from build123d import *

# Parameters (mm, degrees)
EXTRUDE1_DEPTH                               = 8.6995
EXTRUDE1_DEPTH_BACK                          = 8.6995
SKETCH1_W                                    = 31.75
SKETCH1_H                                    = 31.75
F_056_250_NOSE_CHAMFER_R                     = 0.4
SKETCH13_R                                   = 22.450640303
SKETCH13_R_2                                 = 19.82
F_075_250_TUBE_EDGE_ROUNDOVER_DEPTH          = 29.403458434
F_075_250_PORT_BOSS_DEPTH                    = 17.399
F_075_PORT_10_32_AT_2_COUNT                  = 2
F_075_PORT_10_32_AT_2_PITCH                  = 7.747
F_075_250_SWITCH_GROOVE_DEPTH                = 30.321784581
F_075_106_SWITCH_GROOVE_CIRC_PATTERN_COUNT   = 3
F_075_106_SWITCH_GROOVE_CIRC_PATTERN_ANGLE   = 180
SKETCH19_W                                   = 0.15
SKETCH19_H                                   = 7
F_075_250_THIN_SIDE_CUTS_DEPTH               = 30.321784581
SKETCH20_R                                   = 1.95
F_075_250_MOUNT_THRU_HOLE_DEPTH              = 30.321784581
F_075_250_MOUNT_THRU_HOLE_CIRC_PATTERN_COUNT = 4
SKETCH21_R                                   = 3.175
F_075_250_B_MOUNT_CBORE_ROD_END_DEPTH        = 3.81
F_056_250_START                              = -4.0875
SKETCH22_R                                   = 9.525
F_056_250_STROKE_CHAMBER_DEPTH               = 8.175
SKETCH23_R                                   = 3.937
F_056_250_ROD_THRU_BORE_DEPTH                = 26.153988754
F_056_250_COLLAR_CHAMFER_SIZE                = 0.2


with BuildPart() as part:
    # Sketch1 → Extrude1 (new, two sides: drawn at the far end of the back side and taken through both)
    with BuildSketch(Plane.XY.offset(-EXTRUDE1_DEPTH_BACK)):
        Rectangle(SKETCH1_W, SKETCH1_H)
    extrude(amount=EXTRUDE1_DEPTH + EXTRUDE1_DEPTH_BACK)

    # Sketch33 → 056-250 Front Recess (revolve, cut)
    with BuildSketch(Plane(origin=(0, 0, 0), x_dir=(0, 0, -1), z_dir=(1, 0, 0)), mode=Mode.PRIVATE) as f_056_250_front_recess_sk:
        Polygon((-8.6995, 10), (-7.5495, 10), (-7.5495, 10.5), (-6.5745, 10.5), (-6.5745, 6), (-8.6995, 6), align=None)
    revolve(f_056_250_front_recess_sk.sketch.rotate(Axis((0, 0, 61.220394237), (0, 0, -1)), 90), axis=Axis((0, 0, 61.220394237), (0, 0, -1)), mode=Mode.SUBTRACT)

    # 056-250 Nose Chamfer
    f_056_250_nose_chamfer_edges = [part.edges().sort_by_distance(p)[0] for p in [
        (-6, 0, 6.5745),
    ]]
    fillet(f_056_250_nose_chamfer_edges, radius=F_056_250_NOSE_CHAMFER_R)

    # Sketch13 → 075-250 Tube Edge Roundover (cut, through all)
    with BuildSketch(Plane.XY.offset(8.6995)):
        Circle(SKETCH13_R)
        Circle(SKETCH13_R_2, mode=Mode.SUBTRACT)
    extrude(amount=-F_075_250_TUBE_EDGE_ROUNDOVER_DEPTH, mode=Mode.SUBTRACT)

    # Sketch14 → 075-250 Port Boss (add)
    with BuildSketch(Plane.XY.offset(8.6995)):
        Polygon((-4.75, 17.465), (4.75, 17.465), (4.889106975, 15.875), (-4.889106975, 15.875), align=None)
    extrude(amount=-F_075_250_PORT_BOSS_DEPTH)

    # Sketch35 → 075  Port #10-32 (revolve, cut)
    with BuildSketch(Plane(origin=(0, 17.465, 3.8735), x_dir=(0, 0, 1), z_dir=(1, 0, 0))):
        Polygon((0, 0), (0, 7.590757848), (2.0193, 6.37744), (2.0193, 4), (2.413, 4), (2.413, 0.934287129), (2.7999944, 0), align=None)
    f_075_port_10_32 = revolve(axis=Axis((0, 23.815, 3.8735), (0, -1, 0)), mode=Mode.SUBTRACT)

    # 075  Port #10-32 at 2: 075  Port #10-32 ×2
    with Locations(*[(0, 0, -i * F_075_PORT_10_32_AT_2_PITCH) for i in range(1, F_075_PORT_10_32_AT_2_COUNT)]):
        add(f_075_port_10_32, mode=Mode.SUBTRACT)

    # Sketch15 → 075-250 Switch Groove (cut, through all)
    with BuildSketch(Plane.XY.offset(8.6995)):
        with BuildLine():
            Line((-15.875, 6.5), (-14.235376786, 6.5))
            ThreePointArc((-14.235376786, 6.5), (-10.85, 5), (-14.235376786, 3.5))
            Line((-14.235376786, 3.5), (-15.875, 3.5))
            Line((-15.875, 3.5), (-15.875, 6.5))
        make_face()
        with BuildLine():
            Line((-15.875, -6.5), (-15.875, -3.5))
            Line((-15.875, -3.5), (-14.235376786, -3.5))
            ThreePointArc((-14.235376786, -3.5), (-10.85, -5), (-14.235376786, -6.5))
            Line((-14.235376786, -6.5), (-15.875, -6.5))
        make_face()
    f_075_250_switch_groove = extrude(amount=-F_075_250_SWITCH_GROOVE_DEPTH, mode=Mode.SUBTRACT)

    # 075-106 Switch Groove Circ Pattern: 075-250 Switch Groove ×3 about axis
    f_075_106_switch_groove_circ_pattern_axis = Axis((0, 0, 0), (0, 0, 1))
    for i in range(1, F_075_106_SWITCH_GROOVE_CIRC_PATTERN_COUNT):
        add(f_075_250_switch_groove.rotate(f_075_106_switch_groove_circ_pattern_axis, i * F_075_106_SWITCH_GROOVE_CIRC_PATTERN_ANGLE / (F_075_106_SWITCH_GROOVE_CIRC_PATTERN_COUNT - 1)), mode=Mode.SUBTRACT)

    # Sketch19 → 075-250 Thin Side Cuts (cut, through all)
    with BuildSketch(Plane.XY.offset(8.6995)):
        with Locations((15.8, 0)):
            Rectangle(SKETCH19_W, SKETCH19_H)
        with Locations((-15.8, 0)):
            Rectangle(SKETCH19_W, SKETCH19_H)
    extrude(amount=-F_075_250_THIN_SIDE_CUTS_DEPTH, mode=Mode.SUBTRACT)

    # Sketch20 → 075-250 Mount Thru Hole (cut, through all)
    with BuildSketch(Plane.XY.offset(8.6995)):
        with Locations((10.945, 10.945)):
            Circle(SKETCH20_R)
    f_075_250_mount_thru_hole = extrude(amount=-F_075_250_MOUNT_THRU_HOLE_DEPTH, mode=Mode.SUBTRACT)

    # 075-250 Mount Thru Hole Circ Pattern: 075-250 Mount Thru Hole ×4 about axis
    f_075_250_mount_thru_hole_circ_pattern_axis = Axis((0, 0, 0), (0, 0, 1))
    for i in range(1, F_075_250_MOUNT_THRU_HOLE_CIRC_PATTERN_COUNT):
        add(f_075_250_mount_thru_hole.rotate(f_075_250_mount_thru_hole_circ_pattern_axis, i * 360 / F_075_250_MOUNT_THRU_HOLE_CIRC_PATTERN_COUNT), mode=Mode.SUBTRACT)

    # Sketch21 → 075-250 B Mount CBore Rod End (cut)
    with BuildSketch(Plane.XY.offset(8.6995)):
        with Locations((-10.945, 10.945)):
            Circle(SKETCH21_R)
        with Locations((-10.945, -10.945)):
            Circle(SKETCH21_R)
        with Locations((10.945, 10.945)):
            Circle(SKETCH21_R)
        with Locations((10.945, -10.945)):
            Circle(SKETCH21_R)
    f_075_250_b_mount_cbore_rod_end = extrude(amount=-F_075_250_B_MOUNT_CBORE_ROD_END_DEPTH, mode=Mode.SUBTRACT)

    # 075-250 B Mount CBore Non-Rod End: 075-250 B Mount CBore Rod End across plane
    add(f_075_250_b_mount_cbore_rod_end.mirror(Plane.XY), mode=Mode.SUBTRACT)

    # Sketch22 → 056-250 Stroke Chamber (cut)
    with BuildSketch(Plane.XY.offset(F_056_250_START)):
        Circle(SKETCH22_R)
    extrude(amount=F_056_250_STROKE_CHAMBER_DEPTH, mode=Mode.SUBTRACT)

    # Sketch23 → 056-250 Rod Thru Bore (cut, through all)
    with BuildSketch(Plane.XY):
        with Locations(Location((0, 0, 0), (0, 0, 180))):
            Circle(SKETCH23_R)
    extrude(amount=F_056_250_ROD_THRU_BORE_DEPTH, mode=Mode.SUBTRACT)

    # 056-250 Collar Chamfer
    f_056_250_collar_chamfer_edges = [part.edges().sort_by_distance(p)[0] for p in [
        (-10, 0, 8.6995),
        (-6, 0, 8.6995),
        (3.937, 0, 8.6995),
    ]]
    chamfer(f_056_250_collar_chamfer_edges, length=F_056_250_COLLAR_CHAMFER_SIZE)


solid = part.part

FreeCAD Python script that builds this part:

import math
import FreeCAD as App
import Part
import Sketcher
from FreeCAD import Vector
Q = App.Units.Quantity


def edges_at(feature, points):
    """Names of the edges that pass closest to the given points."""
    edges = feature.Shape.Edges
    near = lambda p: min(range(len(edges)), key=lambda i: edges[i].distToShape(Part.Vertex(*p))[0])
    return sorted({f"Edge{near(p) + 1}" for p in points})

doc = App.newDocument("Part")
body = doc.addObject("PartDesign::Body", "Body")

sketch1 = body.newObject("Sketcher::SketchObject", "Sketch")
sketch1.AttachmentSupport = (doc.getObject("XY_Plane"), [""])
sketch1.MapMode = "FlatFace"
sketch1.addGeometry([
    Part.LineSegment(Vector(-16, 16, 0), Vector(-16, -16, 0)),
    Part.LineSegment(Vector(-16, -16, 0), Vector(16, -16, 0)),
    Part.LineSegment(Vector(16, -16, 0), Vector(16, 16, 0)),
    Part.LineSegment(Vector(16, 16, 0), Vector(-16, 16, 0)),
], False)
sketch1.addConstraint([
    Sketcher.Constraint("Coincident", 0, 2, 1, 1),
    Sketcher.Constraint("Coincident", 1, 2, 2, 1),
    Sketcher.Constraint("Coincident", 2, 2, 3, 1),
    Sketcher.Constraint("Coincident", 3, 2, 0, 1),
    Sketcher.Constraint("Vertical", 0),
    Sketcher.Constraint("Horizontal", 1),
    Sketcher.Constraint("Vertical", 2),
    Sketcher.Constraint("Horizontal", 3),
    Sketcher.Constraint("Symmetric", 0, 2, 2, 2, -1, 1),
    Sketcher.Constraint("Equal", 3, 0),
    Sketcher.Constraint("DistanceX", 1, 1, 1, 2, Q("31.75 mm")),
])
pad1 = body.newObject("PartDesign::Pad", "Pad")
pad1.Profile = sketch1
pad1.Type = "TwoLengths"
pad1.Length = 8.6995
pad1.Length2 = 8.6995

sketch2 = body.newObject("Sketcher::SketchObject", "Sketch001")
sketch2.AttachmentSupport = (doc.getObject("YZ_Plane"), [""])
sketch2.MapMode = "FlatFace"
sketch2.addGeometry([
    Part.LineSegment(Vector(10, 7.5, 0), Vector(10, 8.7, 0)),
    Part.LineSegment(Vector(10, 8.7, 0), Vector(6, 8.7, 0)),
    Part.LineSegment(Vector(6, 8.7, 0), Vector(6, 6.6, 0)),
    Part.LineSegment(Vector(6, 6.6, 0), Vector(10.5, 6.6, 0)),
    Part.LineSegment(Vector(10.5, 6.6, 0), Vector(10.5, 7.5, 0)),
    Part.LineSegment(Vector(10.5, 7.5, 0), Vector(10, 7.5, 0)),
], False)
sketch2.addConstraint([
    Sketcher.Constraint("Coincident", 0, 2, 1, 1),
    Sketcher.Constraint("Coincident", 1, 2, 2, 1),
    Sketcher.Constraint("Coincident", 2, 2, 3, 1),
    Sketcher.Constraint("Coincident", 3, 2, 4, 1),
    Sketcher.Constraint("Coincident", 4, 2, 5, 1),
    Sketcher.Constraint("Coincident", 5, 2, 0, 1),
    Sketcher.Constraint("Vertical", 0),
    Sketcher.Constraint("Horizontal", 1),
    Sketcher.Constraint("Vertical", 2),
    Sketcher.Constraint("Horizontal", 3),
    Sketcher.Constraint("Vertical", 4),
    Sketcher.Constraint("Horizontal", 5),
    Sketcher.Constraint("DistanceX", 1, 2, 1, 1, Q("4 mm")),
    Sketcher.Constraint("DistanceX", 3, 1, 3, 2, Q("4.5 mm")),
    Sketcher.Constraint("DistanceX", -1, 1, 0, 2, Q("10 mm")),
    Sketcher.Constraint("DistanceY", 0, 1, 0, 2, Q("1.15 mm")),
    Sketcher.Constraint("DistanceY", 2, 2, 2, 1, Q("2.125 mm")),
    Sketcher.Constraint("DistanceY", -1, 1, 0, 2, Q("8.6995 mm")),
])
groove = body.newObject("PartDesign::Groove", "Groove")
groove.Profile = sketch2
groove.ReferenceAxis = (sketch2, ["V_Axis"])
groove.Angle = 360
doc.recompute()

fillet = body.newObject("PartDesign::Fillet", "Fillet")
fillet.Base = (groove, edges_at(groove, [(-6, 0, 6.574)]))
fillet.Radius = 0.4

sketch3 = body.newObject("Sketcher::SketchObject", "Sketch002")
sketch3.AttachmentSupport = (doc.getObject("XY_Plane"), [""])
sketch3.MapMode = "FlatFace"
sketch3.AttachmentOffset = App.Placement(Vector(0, 0, 8.6995), App.Rotation())
sketch3.addGeometry([
    Part.Circle(Vector(0, 0, 0), Vector(0, 0, 1), 22),
    Part.Circle(Vector(0, 0, 0), Vector(0, 0, 1), 20),
], False)
sketch3.addConstraint([
    Sketcher.Constraint("Coincident", 0, 3, -1, 1),
    Sketcher.Constraint("Coincident", 1, 3, -1, 1),
    Sketcher.Constraint("Diameter", 1, Q("39.64 mm")),
    Sketcher.Constraint("Diameter", 0, Q("44.901281 mm")),
])
pocket1 = body.newObject("PartDesign::Pocket", "Pocket")
pocket1.Profile = sketch3
pocket1.Type = "ThroughAll"

sketch4 = body.newObject("Sketcher::SketchObject", "Sketch003")
sketch4.AttachmentSupport = (doc.getObject("XY_Plane"), [""])
sketch4.MapMode = "FlatFace"
sketch4.AttachmentOffset = App.Placement(Vector(0, 0, 8.6995), App.Rotation())
sketch4.addGeometry([
    Part.LineSegment(Vector(4.8, 17.5, 0), Vector(-4.8, 17.5, 0)),
    Part.LineSegment(Vector(-4.8, 17.5, 0), Vector(-4.9, 15.9, 0)),
    Part.LineSegment(Vector(-4.9, 15.9, 0), Vector(4.9, 15.9, 0)),
    Part.LineSegment(Vector(4.9, 15.9, 0), Vector(4.8, 17.5, 0)),
], False)
sketch4.addConstraint([
    Sketcher.Constraint("Coincident", 0, 2, 1, 1),
    Sketcher.Constraint("Coincident", 1, 2, 2, 1),
    Sketcher.Constraint("Coincident", 2, 2, 3, 1),
    Sketcher.Constraint("Coincident", 3, 2, 0, 1),
    Sketcher.Constraint("Horizontal", 0),
    Sketcher.Constraint("Horizontal", 2),
    Sketcher.Constraint("Equal", 1, 3),
    Sketcher.Constraint("Angle", 1, Q("-95 deg")),
    Sketcher.Constraint("DistanceX", 0, 2, 0, 1, Q("9.5 mm")),
    Sketcher.Constraint("DistanceX", 0, 2, -1, 1, Q("4.75 mm")),
    Sketcher.Constraint("DistanceY", 1, 2, 0, 2, Q("1.59 mm")),
    Sketcher.Constraint("DistanceY", -1, 1, 0, 2, Q("17.465 mm")),
])
pad2 = body.newObject("PartDesign::Pad", "Pad001")
pad2.Profile = sketch4
pad2.Length = 17.399
pad2.Reversed = True

sketch5 = body.newObject("Sketcher::SketchObject", "Sketch004")
sketch5.AttachmentSupport = (doc.getObject("YZ_Plane"), [""])
sketch5.MapMode = "FlatFace"
sketch5.addGeometry([
    Part.LineSegment(Vector(9.87, 3.87, 0), Vector(17.46, 3.87, 0)),
    Part.LineSegment(Vector(17.46, 3.87, 0), Vector(17.46, 6.67, 0)),
    Part.LineSegment(Vector(17.46, 6.67, 0), Vector(16.53, 6.29, 0)),
    Part.LineSegment(Vector(16.53, 6.29, 0), Vector(13.46, 6.29, 0)),
    Part.LineSegment(Vector(13.46, 6.29, 0), Vector(13.46, 5.89, 0)),
    Part.LineSegment(Vector(13.46, 5.89, 0), Vector(11.09, 5.89, 0)),
    Part.LineSegment(Vector(11.09, 5.89, 0), Vector(9.87, 3.87, 0)),
], False)
sketch5.addGeometry(Part.LineSegment(Vector(17.46, 3.87, 0), Vector(9.87, 3.87, 0)), True)
sketch5.addConstraint([
    Sketcher.Constraint("Coincident", 0, 2, 1, 1),
    Sketcher.Constraint("Coincident", 1, 2, 2, 1),
    Sketcher.Constraint("Coincident", 2, 2, 3, 1),
    Sketcher.Constraint("Coincident", 3, 2, 4, 1),
    Sketcher.Constraint("Coincident", 4, 2, 5, 1),
    Sketcher.Constraint("Coincident", 5, 2, 6, 1),
    Sketcher.Constraint("Coincident", 6, 2, 0, 1),
    Sketcher.Constraint("Horizontal", 0),
    Sketcher.Constraint("Vertical", 1),
    Sketcher.Constraint("Horizontal", 3),
    Sketcher.Constraint("Vertical", 4),
    Sketcher.Constraint("Horizontal", 5),
    Sketcher.Constraint("Horizontal", 7),
    Sketcher.Constraint("Coincident", 7, 1, 0, 2),
    Sketcher.Constraint("Equal", 0, 7),
    Sketcher.Constraint("Angle", 6, Q("-121 deg")),
    Sketcher.Constraint("Angle", 2, Q("-157.5 deg")),
    Sketcher.Constraint("DistanceX", 3, 2, 1, 2, Q("4 mm")),
    Sketcher.Constraint("DistanceY", 4, 2, 4, 1, Q("0.3937 mm")),
    Sketcher.Constraint("DistanceX", -1, 1, 0, 2, Q("17.465 mm")),
    Sketcher.Constraint("DistanceY", 0, 2, 2, 2, Q("2.413 mm")),
    Sketcher.Constraint("DistanceX", 5, 2, 5, 1, Q("2.37744 mm")),
    Sketcher.Constraint("DistanceY", -1, 1, 0, 2, Q("3.8735 mm")),
    Sketcher.Constraint("DistanceX", 3, 2, 3, 1, Q("3.065713 mm")),
])
groove2 = body.newObject("PartDesign::Groove", "Groove001")
groove2.Profile = sketch5
groove2.ReferenceAxis = (sketch5, ["Axis0"])
groove2.Angle = 360
doc.recompute()

linearpattern = body.newObject("PartDesign::LinearPattern", "LinearPattern")
linearpattern.Originals = [groove2]
linearpattern.Direction = (doc.getObject("Z_Axis"), [""])
linearpattern.Mode = "offset"
linearpattern.Offset = 7.747
linearpattern.Occurrences = 2
linearpattern.Reversed = True
body.Tip = linearpattern

sketch6 = body.newObject("Sketcher::SketchObject", "Sketch005")
sketch6.AttachmentSupport = (doc.getObject("XY_Plane"), [""])
sketch6.MapMode = "FlatFace"
sketch6.AttachmentOffset = App.Placement(Vector(0, 0, 8.6995), App.Rotation())
sketch6.addGeometry([
    Part.LineSegment(Vector(-14.2, 6.5, 0), Vector(-15.9, 6.5, 0)),
    Part.LineSegment(Vector(-15.9, 6.5, 0), Vector(-15.9, 3.5, 0)),
    Part.LineSegment(Vector(-15.9, 3.5, 0), Vector(-14.2, 3.5, 0)),
    Part.ArcOfCircle(Part.Circle(Vector(-12.9, 5, 0), Vector(0, 0, 1), 2), math.radians(-132), math.radians(132)),
    Part.LineSegment(Vector(-15.9, -3.5, 0), Vector(-15.9, -6.5, 0)),
    Part.LineSegment(Vector(-15.9, -6.5, 0), Vector(-14.2, -6.5, 0)),
    Part.ArcOfCircle(Part.Circle(Vector(-12.9, -5, 0), Vector(0, 0, 1), 2), math.radians(-132), math.radians(132)),
    Part.LineSegment(Vector(-14.2, -3.5, 0), Vector(-15.9, -3.5, 0)),
], False)
sketch6.addConstraint([
    Sketcher.Constraint("Coincident", 0, 2, 1, 1),
    Sketcher.Constraint("Coincident", 1, 2, 2, 1),
    Sketcher.Constraint("Coincident", 2, 2, 3, 1),
    Sketcher.Constraint("Coincident", 3, 2, 0, 1),
    Sketcher.Constraint("Coincident", 4, 2, 5, 1),
    Sketcher.Constraint("Coincident", 5, 2, 6, 1),
    Sketcher.Constraint("Coincident", 6, 2, 7, 1),
    Sketcher.Constraint("Coincident", 7, 2, 4, 1),
    Sketcher.Constraint("Horizontal", 0),
    Sketcher.Constraint("Vertical", 1),
    Sketcher.Constraint("Horizontal", 2),
    Sketcher.Constraint("Vertical", 4),
    Sketcher.Constraint("Horizontal", 5),
    Sketcher.Constraint("Horizontal", 7),
    Sketcher.Constraint("Equal", 3, 6),
    Sketcher.Constraint("Symmetric", 3, 3, 6, 3, -1),
    Sketcher.Constraint("Symmetric", 0, 2, 4, 2, -1),
    Sketcher.Constraint("Vertical", 2, 2, 3, 2),
    Sketcher.Constraint("Vertical", 5, 2, 6, 2),
    Sketcher.Constraint("DistanceY", 1, 2, 1, 1, Q("3 mm")),
    Sketcher.Constraint("DistanceY", -1, 1, 3, 3, Q("5 mm")),
    Sketcher.Constraint("Radius", 3, Q("2.025 mm")),
    Sketcher.Constraint("DistanceX", 0, 2, 3, 3, Q("3 mm")),
    Sketcher.Constraint("DistanceX", 3, 3, -1, 1, Q("12.875 mm")),
])
pocket2 = body.newObject("PartDesign::Pocket", "Pocket001")
pocket2.Profile = sketch6
pocket2.Type = "ThroughAll"
doc.recompute()

polarpattern = body.newObject("PartDesign::PolarPattern", "PolarPattern")
polarpattern.Originals = [pocket2]
polarpattern.Axis = (doc.getObject("Z_Axis"), [""])
polarpattern.Angle = 180
polarpattern.Occurrences = 3
body.Tip = polarpattern

sketch7 = body.newObject("Sketcher::SketchObject", "Sketch006")
sketch7.AttachmentSupport = (doc.getObject("XY_Plane"), [""])
sketch7.MapMode = "FlatFace"
sketch7.AttachmentOffset = App.Placement(Vector(0, 0, 8.6995), App.Rotation())
sketch7.addGeometry([
    Part.LineSegment(Vector(15.72, 3.5, 0), Vector(15.72, -3.5, 0)),
    Part.LineSegment(Vector(15.72, -3.5, 0), Vector(15.88, -3.5, 0)),
    Part.LineSegment(Vector(15.88, -3.5, 0), Vector(15.88, 3.5, 0)),
    Part.LineSegment(Vector(15.88, 3.5, 0), Vector(15.72, 3.5, 0)),
    Part.LineSegment(Vector(-15.88, 3.5, 0), Vector(-15.88, -3.5, 0)),
    Part.LineSegment(Vector(-15.88, -3.5, 0), Vector(-15.72, -3.5, 0)),
    Part.LineSegment(Vector(-15.72, -3.5, 0), Vector(-15.72, 3.5, 0)),
    Part.LineSegment(Vector(-15.72, 3.5, 0), Vector(-15.88, 3.5, 0)),
], False)
sketch7.addConstraint([
    Sketcher.Constraint("Coincident", 0, 2, 1, 1),
    Sketcher.Constraint("Coincident", 1, 2, 2, 1),
    Sketcher.Constraint("Coincident", 2, 2, 3, 1),
    Sketcher.Constraint("Coincident", 3, 2, 0, 1),
    Sketcher.Constraint("Coincident", 4, 2, 5, 1),
    Sketcher.Constraint("Coincident", 5, 2, 6, 1),
    Sketcher.Constraint("Coincident", 6, 2, 7, 1),
    Sketcher.Constraint("Coincident", 7, 2, 4, 1),
    Sketcher.Constraint("Vertical", 0),
    Sketcher.Constraint("Horizontal", 1),
    Sketcher.Constraint("Vertical", 2),
    Sketcher.Constraint("Horizontal", 3),
    Sketcher.Constraint("Vertical", 4),
    Sketcher.Constraint("Horizontal", 5),
    Sketcher.Constraint("Vertical", 6),
    Sketcher.Constraint("Horizontal", 7),
    Sketcher.Constraint("Symmetric", 2, 2, 4, 2, -1, 1),
    Sketcher.Constraint("Symmetric", 0, 2, 6, 2, -1, 1),
    Sketcher.Constraint("Horizontal", 1, 2, 4, 2),
    Sketcher.Constraint("DistanceY", 0, 2, 0, 1, Q("7 mm")),
    Sketcher.Constraint("DistanceX", 1, 1, 1, 2, Q("0.15 mm")),
    Sketcher.Constraint("DistanceX", 4, 2, 0, 2, Q("31.6 mm")),
])
pocket3 = body.newObject("PartDesign::Pocket", "Pocket002")
pocket3.Profile = sketch7
pocket3.Type = "ThroughAll"

sketch8 = body.newObject("Sketcher::SketchObject", "Sketch007")
sketch8.AttachmentSupport = (doc.getObject("XY_Plane"), [""])
sketch8.MapMode = "FlatFace"
sketch8.AttachmentOffset = App.Placement(Vector(0, 0, 8.6995), App.Rotation())
sketch8.addGeometry(Part.Circle(Vector(10.9, 10.9, 0), Vector(0, 0, 1), 1.9), False)
sketch8.addConstraint([
    Sketcher.Constraint("Diameter", 0, Q("3.9 mm")),
    Sketcher.Constraint("DistanceX", -1, 1, 0, 3, Q("10.945 mm")),
    Sketcher.Constraint("DistanceY", -1, 1, 0, 3, Q("10.945 mm")),
])
pocket4 = body.newObject("PartDesign::Pocket", "Pocket003")
pocket4.Profile = sketch8
pocket4.Type = "ThroughAll"
doc.recompute()

polarpattern2 = body.newObject("PartDesign::PolarPattern", "PolarPattern001")
polarpattern2.Originals = [pocket4]
polarpattern2.Axis = (doc.getObject("Z_Axis"), [""])
polarpattern2.Angle = 360
polarpattern2.Occurrences = 4
body.Tip = polarpattern2

sketch9 = body.newObject("Sketcher::SketchObject", "Sketch008")
sketch9.AttachmentSupport = (doc.getObject("XY_Plane"), [""])
sketch9.MapMode = "FlatFace"
sketch9.AttachmentOffset = App.Placement(Vector(0, 0, 8.6995), App.Rotation())
sketch9.addGeometry([
    Part.Circle(Vector(-10.9, 10.9, 0), Vector(0, 0, 1), 3.2),
    Part.Circle(Vector(-10.9, -10.9, 0), Vector(0, 0, 1), 3.2),
    Part.Circle(Vector(10.9, 10.9, 0), Vector(0, 0, 1), 3.2),
    Part.Circle(Vector(10.9, -10.9, 0), Vector(0, 0, 1), 3.2),
], False)
sketch9.addConstraint([
    Sketcher.Constraint("Equal", 0, 1),
    Sketcher.Constraint("Equal", 1, 2),
    Sketcher.Constraint("Equal", 2, 3),
    Sketcher.Constraint("Symmetric", 1, 3, 2, 3, -1, 1),
    Sketcher.Constraint("Symmetric", 0, 3, 3, 3, -1, 1),
    Sketcher.Constraint("Symmetric", 0, 3, 2, 3, -2),
    Sketcher.Constraint("Diameter", 0, Q("6.35 mm")),
    Sketcher.Constraint("DistanceY", 1, 3, 0, 3, Q("21.89 mm")),
    Sketcher.Constraint("DistanceX", 0, 3, 2, 3, Q("21.89 mm")),
])
pocket5 = body.newObject("PartDesign::Pocket", "Pocket004")
pocket5.Profile = sketch9
pocket5.Length = 3.81
doc.recompute()

mirrored = body.newObject("PartDesign::Mirrored", "Mirrored")
mirrored.Originals = [pocket5]
mirrored.MirrorPlane = (doc.getObject("XY_Plane"), [""])
body.Tip = mirrored

sketch10 = body.newObject("Sketcher::SketchObject", "Sketch009")
sketch10.AttachmentSupport = (doc.getObject("XY_Plane"), [""])
sketch10.MapMode = "FlatFace"
sketch10.AttachmentOffset = App.Placement(Vector(0, 0, -4.0875), App.Rotation())
sketch10.addGeometry(Part.Circle(Vector(0, 0, 0), Vector(0, 0, 1), 10), False)
sketch10.addConstraint([
    Sketcher.Constraint("Coincident", 0, 3, -1, 1),
    Sketcher.Constraint("Diameter", 0, Q("19.05 mm")),
])
pocket6 = body.newObject("PartDesign::Pocket", "Pocket005")
pocket6.Profile = sketch10
pocket6.Length = 8.175
pocket6.Reversed = True

sketch11 = body.newObject("Sketcher::SketchObject", "Sketch010")
sketch11.AttachmentSupport = (doc.getObject("XY_Plane"), [""])
sketch11.MapMode = "FlatFace"
sketch11.addGeometry(Part.Circle(Vector(0, 0, 0), Vector(0, 0, 1), 3.9), False)
sketch11.addConstraint([
    Sketcher.Constraint("Coincident", 0, 3, -1, 1),
    Sketcher.Constraint("Diameter", 0, Q("7.874 mm")),
])
pocket7 = body.newObject("PartDesign::Pocket", "Pocket006")
pocket7.Profile = sketch11
pocket7.Type = "ThroughAll"
pocket7.Reversed = True
doc.recompute()

chamfer = body.newObject("PartDesign::Chamfer", "Chamfer")
chamfer.Base = (pocket7, edges_at(pocket7, [(-10, 0, 8.7), (-6, 0, 8.7), (3.937, 0, 8.7)]))
chamfer.Size = 0.2

doc.recompute()
